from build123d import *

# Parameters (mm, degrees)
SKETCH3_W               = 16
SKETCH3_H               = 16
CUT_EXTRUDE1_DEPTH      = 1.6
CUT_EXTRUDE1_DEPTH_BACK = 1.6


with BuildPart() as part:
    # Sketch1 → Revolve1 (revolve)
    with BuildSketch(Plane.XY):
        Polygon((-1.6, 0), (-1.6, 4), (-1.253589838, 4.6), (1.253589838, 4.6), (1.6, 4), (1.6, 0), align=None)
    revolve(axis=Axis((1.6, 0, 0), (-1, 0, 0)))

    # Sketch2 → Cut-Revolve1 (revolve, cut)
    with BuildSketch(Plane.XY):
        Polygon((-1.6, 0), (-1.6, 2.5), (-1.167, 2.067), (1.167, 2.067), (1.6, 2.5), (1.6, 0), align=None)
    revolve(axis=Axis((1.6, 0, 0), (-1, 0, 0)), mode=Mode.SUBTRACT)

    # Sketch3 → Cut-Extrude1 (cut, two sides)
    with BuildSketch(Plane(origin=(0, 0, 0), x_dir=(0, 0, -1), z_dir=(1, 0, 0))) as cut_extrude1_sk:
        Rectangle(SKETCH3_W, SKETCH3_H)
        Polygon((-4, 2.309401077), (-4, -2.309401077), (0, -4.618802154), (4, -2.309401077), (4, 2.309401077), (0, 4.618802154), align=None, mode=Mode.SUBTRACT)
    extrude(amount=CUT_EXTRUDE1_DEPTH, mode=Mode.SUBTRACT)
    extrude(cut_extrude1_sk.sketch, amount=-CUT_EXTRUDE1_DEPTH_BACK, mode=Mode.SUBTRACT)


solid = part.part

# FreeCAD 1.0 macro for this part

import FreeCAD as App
import Part
import Sketcher
Q = App.Units.Quantity


def add_polygon(sketch, points):
    """Adds a closed chain of lines whose ends are joined by coincident constraints."""
    first, n = sketch.GeometryCount, len(points)
    for a, b in zip(points, points[1:] + points[:1]):
        sketch.addGeometry(Part.LineSegment(App.Vector(*a, 0), App.Vector(*b, 0)), False)
    for i in range(n):
        sketch.addConstraint(Sketcher.Constraint("Coincident", first + i, 2, first + (i + 1) % n, 1))

doc = App.newDocument("Part")
body = doc.addObject("PartDesign::Body", "Body")

# Sketch on XY plane
sketch1 = body.newObject("Sketcher::SketchObject", "Sketch")
sketch1.AttachmentSupport = (doc.getObject("XY_Plane"), [""])
sketch1.MapMode = "FlatFace"
add_polygon(sketch1, [(-1.6, 4), (-1.6, 0), (1.6, 0), (1.6, 4), (1.3, 4.6), (-1.3, 4.6)])  # lines 0-5
sketch1.addConstraint(Sketcher.Constraint("Vertical", 0))
sketch1.addConstraint(Sketcher.Constraint("Horizontal", 1))
sketch1.addConstraint(Sketcher.Constraint("Vertical", 2))
sketch1.addConstraint(Sketcher.Constraint("Horizontal", 4))
sketch1.addConstraint(Sketcher.Constraint("Symmetric", 0, 2, 1, 2, -1, 1))
sketch1.addConstraint(Sketcher.Constraint("Horizontal", 2, 2, 5, 2))
sketch1.addConstraint(Sketcher.Constraint("Equal", 3, 5))
sketch1.addConstraint(Sketcher.Constraint("DistanceY", 0, 2, 0, 1, Q("4 mm")))
sketch1.addConstraint(Sketcher.Constraint("Angle", 3, Q("120 deg")))
sketch1.addConstraint(Sketcher.Constraint("DistanceX", 1, 1, 1, 2, Q("3.2 mm")))
sketch1.addConstraint(Sketcher.Constraint("DistanceY", -1, 1, 3, 2, Q("4.6 mm")))
revolution = body.newObject("PartDesign::Revolution", "Revolution")
revolution.Profile = sketch1
revolution.ReferenceAxis = (sketch1, ["H_Axis"])
revolution.Angle = 360

# Sketch on XY plane
sketch2 = body.newObject("Sketcher::SketchObject", "Sketch001")
sketch2.AttachmentSupport = (doc.getObject("XY_Plane"), [""])
sketch2.MapMode = "FlatFace"
add_polygon(sketch2, [(-1.6, 2.5), (-1.6, 0), (1.6, 0), (1.6, 2.5), (1.2, 2.1), (-1.2, 2.1)])  # lines 0-5
sketch2.addConstraint(Sketcher.Constraint("Vertical", 0))
sketch2.addConstraint(Sketcher.Constraint("Horizontal", 1))
sketch2.addConstraint(Sketcher.Constraint("Vertical", 2))
sketch2.addConstraint(Sketcher.Constraint("Horizontal", 4))
sketch2.addConstraint(Sketcher.Constraint("Symmetric", 0, 2, 1, 2, -1, 1))
sketch2.addConstraint(Sketcher.Constraint("Perpendicular", 3, 5))
sketch2.addConstraint(Sketcher.Constraint("Horizontal", 2, 2, 5, 2))
sketch2.addConstraint(Sketcher.Constraint("Equal", 3, 5))
sketch2.addConstraint(Sketcher.Constraint("DistanceX", 1, 1, 1, 2, Q("3.2 mm")))
sketch2.addConstraint(Sketcher.Constraint("DistanceY", 0, 2, 0, 1, Q("2.5 mm")))
sketch2.addConstraint(Sketcher.Constraint("DistanceX", 4, 2, 4, 1, Q("2.334 mm")))
groove = body.newObject("PartDesign::Groove", "Groove")
groove.Profile = sketch2
groove.ReferenceAxis = (sketch2, ["H_Axis"])
groove.Angle = 360

# Sketch on YZ plane
sketch3 = body.newObject("Sketcher::SketchObject", "Sketch002")
sketch3.AttachmentSupport = (doc.getObject("YZ_Plane"), [""])
sketch3.MapMode = "FlatFace"
add_polygon(sketch3, [(8, 8), (-8, 8), (-8, -8), (8, -8)])  # lines 0-3
add_polygon(sketch3, [(-2.3, 4), (2.3, 4), (4.6, 0), (2.3, -4), (-2.3, -4), (-4.6, 0)])  # lines 4-9
sketch3.addConstraint(Sketcher.Constraint("Horizontal", 0))
sketch3.addConstraint(Sketcher.Constraint("Vertical", 1))
sketch3.addConstraint(Sketcher.Constraint("Horizontal", 2))
sketch3.addConstraint(Sketcher.Constraint("Vertical", 3))
sketch3.addConstraint(Sketcher.Constraint("Horizontal", 4))
sketch3.addConstraint(Sketcher.Constraint("Horizontal", 7))
sketch3.addConstraint(Sketcher.Constraint("Symmetric", 0, 2, 2, 2, -1, 1))
sketch3.addConstraint(Sketcher.Constraint("Symmetric", 4, 2, 7, 2, -1, 1))
sketch3.addConstraint(Sketcher.Constraint("Symmetric", 5, 2, 8, 2, -1, 1))
sketch3.addConstraint(Sketcher.Constraint("PointOnObject", 5, 2, -1))
sketch3.addConstraint(Sketcher.Constraint("Parallel", 6, 9))
sketch3.addConstraint(Sketcher.Constraint("Vertical", 4, 2, 6, 2))
sketch3.addConstraint(Sketcher.Constraint("Equal", 2, 1))
sketch3.addConstraint(Sketcher.Constraint("DistanceX", 0, 2, 0, 1, Q("16 mm")))
sketch3.addConstraint(Sketcher.Constraint("Angle", 5, Q("-60 deg")))
sketch3.addConstraint(Sketcher.Constraint("DistanceY", -1, 1, 4, 2, Q("4 mm")))
sketch3.addConstraint(Sketcher.Constraint("DistanceX", -1, 1, 4, 2, Q("2.309401 mm")))
pocket1 = body.newObject("PartDesign::Pocket", "Pocket")
pocket1.Profile = sketch3
pocket1.Type = "ThroughAll"
pocket1.Midplane = True

doc.recompute()
